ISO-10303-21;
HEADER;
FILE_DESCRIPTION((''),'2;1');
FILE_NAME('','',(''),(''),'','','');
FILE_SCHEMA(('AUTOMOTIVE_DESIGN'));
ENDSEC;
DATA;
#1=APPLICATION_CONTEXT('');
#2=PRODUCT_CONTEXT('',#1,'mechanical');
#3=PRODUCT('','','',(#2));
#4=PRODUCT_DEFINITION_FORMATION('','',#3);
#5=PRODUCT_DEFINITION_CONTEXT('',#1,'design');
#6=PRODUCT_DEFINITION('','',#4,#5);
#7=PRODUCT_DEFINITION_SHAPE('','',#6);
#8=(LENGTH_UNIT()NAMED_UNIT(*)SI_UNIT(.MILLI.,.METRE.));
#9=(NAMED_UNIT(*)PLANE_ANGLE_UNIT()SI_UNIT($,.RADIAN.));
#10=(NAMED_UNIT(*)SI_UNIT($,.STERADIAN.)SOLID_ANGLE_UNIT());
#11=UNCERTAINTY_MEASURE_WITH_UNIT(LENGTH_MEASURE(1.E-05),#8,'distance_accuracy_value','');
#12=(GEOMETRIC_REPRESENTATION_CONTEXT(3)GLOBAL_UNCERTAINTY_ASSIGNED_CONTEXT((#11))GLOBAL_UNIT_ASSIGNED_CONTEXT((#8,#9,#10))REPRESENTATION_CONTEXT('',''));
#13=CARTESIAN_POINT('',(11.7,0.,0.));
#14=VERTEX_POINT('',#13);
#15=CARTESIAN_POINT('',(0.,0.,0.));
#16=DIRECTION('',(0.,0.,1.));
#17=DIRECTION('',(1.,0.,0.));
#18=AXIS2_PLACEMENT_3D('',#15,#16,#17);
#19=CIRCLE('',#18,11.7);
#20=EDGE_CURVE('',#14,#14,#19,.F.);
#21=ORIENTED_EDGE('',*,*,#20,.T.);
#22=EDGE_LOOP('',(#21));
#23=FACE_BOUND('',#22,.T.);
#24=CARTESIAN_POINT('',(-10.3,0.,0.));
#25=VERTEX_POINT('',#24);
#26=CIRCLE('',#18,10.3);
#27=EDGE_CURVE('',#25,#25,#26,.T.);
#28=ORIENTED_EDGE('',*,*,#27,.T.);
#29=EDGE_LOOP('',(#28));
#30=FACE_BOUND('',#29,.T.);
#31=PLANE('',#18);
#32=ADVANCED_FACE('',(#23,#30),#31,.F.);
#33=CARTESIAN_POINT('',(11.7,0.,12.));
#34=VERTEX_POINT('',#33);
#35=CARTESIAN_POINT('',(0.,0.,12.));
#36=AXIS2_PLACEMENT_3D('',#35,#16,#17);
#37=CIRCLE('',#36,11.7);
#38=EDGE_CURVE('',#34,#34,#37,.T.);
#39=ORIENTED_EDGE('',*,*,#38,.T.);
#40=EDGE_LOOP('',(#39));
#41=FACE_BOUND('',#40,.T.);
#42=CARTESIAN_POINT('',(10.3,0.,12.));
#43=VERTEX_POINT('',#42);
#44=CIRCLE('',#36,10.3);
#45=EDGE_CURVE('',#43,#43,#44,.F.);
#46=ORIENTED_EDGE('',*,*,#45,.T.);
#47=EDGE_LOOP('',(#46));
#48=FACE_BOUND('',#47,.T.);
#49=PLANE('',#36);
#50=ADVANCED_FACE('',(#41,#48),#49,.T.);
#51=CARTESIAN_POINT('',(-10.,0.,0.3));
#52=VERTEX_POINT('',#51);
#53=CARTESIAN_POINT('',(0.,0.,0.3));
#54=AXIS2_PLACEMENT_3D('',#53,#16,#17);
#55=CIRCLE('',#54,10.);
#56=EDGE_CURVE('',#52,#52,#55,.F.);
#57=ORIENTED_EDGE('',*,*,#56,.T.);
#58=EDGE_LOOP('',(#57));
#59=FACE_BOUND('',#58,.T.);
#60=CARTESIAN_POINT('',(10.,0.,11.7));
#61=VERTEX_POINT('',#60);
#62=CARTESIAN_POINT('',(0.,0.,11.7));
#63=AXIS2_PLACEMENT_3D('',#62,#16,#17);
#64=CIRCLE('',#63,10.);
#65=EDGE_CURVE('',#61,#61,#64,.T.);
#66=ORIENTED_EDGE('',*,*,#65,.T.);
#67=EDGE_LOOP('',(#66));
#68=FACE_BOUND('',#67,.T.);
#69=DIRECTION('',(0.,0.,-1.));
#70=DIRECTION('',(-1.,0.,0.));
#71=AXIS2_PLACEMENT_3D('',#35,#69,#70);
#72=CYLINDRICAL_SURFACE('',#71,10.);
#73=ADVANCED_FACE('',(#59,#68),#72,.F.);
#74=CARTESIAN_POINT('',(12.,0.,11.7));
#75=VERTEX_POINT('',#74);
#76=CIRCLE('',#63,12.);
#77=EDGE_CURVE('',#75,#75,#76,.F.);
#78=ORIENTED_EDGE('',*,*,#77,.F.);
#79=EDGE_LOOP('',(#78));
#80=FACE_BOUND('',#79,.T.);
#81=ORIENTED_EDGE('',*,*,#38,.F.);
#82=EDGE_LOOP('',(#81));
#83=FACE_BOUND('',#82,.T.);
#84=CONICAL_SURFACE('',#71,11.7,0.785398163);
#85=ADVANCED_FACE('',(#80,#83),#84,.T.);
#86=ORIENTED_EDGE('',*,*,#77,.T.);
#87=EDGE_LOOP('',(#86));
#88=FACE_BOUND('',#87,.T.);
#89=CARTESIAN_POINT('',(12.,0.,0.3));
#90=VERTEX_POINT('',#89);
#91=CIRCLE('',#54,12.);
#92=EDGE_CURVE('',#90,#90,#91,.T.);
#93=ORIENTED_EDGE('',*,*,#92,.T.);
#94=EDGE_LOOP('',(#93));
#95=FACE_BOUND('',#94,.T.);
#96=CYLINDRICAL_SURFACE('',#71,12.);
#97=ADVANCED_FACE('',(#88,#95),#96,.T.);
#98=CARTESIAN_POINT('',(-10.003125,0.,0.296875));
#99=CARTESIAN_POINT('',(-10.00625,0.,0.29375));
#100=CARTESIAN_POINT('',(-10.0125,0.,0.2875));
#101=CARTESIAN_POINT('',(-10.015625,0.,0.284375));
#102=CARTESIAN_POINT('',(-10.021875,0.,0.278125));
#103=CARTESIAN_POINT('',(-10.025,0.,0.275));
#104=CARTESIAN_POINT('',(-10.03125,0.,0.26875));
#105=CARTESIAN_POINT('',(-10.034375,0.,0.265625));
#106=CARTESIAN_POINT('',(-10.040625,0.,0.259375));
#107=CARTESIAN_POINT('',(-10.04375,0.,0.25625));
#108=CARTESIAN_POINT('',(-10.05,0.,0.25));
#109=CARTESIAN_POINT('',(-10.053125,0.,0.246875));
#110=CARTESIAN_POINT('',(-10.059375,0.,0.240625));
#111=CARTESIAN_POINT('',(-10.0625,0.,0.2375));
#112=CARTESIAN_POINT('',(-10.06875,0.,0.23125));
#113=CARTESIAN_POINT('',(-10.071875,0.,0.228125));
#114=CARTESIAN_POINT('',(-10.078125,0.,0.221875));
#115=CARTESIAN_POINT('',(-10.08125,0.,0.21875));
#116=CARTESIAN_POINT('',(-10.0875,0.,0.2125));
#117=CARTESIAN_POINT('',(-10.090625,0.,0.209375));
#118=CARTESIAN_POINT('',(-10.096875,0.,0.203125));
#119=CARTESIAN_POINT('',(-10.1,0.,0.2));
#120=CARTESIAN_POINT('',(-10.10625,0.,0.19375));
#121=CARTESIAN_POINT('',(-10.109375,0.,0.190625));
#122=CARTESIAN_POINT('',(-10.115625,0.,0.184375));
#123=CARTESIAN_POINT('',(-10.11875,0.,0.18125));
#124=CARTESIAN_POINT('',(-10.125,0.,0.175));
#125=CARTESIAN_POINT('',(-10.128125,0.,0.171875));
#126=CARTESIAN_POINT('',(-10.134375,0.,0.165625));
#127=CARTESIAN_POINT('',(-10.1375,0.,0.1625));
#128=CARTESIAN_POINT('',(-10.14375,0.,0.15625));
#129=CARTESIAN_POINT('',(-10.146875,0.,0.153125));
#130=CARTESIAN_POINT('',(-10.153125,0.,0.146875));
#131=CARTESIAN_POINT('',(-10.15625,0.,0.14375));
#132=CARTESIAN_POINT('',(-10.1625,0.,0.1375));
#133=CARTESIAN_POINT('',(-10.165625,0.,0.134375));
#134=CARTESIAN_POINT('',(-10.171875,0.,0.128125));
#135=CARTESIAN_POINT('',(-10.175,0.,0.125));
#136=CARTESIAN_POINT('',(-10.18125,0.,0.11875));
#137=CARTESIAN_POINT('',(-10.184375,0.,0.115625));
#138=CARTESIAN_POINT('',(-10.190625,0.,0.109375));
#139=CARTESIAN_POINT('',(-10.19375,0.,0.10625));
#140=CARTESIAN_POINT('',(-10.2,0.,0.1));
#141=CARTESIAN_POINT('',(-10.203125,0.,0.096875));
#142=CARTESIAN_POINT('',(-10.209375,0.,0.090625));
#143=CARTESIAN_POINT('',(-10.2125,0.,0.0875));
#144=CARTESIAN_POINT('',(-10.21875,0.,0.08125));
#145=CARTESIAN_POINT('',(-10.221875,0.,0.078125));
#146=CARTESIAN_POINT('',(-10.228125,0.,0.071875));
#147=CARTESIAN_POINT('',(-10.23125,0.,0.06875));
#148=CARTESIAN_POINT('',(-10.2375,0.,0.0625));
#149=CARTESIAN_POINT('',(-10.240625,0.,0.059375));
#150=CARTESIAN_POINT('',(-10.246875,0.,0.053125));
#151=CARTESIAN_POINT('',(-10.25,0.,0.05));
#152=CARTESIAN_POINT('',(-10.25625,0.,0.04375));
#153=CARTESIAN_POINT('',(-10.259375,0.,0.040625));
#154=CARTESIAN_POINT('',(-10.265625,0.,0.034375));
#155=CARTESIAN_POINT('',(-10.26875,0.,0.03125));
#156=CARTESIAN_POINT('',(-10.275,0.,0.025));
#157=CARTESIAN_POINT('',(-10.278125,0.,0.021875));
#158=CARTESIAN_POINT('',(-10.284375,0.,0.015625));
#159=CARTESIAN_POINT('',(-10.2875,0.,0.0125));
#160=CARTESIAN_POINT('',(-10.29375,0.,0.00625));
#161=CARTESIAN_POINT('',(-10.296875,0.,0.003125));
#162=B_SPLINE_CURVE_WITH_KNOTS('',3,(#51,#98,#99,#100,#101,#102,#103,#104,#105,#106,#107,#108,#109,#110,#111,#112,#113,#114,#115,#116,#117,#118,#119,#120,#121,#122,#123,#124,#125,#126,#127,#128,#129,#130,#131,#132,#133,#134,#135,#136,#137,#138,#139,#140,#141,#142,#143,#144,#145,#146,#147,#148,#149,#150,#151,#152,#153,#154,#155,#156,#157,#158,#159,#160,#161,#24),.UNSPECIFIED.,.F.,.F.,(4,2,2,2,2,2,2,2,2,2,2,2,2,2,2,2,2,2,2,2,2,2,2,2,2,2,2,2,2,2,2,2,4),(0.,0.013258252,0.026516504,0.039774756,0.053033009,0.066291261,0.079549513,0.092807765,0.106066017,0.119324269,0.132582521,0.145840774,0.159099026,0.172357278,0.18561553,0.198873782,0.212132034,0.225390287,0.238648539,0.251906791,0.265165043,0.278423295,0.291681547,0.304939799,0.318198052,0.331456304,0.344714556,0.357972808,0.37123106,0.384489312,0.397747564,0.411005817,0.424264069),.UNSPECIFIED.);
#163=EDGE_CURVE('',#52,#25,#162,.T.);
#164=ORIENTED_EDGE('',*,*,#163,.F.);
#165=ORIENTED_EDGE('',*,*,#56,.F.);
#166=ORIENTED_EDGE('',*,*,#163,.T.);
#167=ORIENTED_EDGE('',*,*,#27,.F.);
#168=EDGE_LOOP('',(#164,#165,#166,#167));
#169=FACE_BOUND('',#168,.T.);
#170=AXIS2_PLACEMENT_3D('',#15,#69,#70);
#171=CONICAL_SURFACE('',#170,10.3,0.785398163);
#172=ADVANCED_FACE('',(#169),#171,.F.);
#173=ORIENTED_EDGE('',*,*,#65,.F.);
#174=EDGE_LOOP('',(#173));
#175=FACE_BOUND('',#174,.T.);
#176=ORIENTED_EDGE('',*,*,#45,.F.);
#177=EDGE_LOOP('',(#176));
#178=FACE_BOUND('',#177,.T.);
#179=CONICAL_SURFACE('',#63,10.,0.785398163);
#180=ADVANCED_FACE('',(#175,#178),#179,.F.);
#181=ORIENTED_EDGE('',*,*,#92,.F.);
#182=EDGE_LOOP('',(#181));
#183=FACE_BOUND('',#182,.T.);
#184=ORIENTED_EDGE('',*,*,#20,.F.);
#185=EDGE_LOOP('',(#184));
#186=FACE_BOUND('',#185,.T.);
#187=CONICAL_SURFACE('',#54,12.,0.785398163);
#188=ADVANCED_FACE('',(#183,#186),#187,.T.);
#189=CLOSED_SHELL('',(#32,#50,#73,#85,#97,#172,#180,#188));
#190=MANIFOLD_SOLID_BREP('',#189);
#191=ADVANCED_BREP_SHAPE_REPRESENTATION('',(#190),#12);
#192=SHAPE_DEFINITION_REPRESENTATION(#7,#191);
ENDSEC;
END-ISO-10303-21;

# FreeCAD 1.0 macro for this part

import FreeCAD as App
import Part
import Sketcher
from FreeCAD import Vector
Q = App.Units.Quantity


def edges_at(feature, points):
    """Names of the edges that pass closest to the given points."""
    edges = feature.Shape.Edges
    near = lambda p: min(range(len(edges)), key=lambda i: edges[i].distToShape(Part.Vertex(*p))[0])
    return sorted({f"Edge{near(p) + 1}" for p in points})

doc = App.newDocument("Part")
body = doc.addObject("PartDesign::Body", "Body")

# Sketch on XY plane
sketch1 = body.newObject("Sketcher::SketchObject", "Sketch")
sketch1.AttachmentSupport = (doc.getObject("XY_Plane"), [""])
sketch1.MapMode = "FlatFace"
sketch1.addGeometry(Part.Circle(Vector(0, 0, 0), Vector(0, 0, 1), 12), False)
sketch1.addGeometry(Part.Circle(Vector(0, 0, 0), Vector(0, 0, 1), 10), False)
sketch1.addConstraint(Sketcher.Constraint("Coincident", 0, 3, -1, 1))
sketch1.addConstraint(Sketcher.Constraint("Coincident", 1, 3, -1, 1))
sketch1.addConstraint(Sketcher.Constraint("Diameter", 0, Q("24 mm")))
sketch1.addConstraint(Sketcher.Constraint("Diameter", 1, Q("20 mm")))
pad1 = body.newObject("PartDesign::Pad", "Pad")
pad1.Profile = sketch1
pad1.Length = 12
doc.recompute()

chamfer = body.newObject("PartDesign::Chamfer", "Chamfer")
chamfer.Base = (pad1, edges_at(pad1, [
    (-12, 0, 0),
    (-12, 0, 12),
    (-10, 0, 0),
    (-10, 0, 12),
]))
chamfer.Size = 0.3

doc.recompute()
